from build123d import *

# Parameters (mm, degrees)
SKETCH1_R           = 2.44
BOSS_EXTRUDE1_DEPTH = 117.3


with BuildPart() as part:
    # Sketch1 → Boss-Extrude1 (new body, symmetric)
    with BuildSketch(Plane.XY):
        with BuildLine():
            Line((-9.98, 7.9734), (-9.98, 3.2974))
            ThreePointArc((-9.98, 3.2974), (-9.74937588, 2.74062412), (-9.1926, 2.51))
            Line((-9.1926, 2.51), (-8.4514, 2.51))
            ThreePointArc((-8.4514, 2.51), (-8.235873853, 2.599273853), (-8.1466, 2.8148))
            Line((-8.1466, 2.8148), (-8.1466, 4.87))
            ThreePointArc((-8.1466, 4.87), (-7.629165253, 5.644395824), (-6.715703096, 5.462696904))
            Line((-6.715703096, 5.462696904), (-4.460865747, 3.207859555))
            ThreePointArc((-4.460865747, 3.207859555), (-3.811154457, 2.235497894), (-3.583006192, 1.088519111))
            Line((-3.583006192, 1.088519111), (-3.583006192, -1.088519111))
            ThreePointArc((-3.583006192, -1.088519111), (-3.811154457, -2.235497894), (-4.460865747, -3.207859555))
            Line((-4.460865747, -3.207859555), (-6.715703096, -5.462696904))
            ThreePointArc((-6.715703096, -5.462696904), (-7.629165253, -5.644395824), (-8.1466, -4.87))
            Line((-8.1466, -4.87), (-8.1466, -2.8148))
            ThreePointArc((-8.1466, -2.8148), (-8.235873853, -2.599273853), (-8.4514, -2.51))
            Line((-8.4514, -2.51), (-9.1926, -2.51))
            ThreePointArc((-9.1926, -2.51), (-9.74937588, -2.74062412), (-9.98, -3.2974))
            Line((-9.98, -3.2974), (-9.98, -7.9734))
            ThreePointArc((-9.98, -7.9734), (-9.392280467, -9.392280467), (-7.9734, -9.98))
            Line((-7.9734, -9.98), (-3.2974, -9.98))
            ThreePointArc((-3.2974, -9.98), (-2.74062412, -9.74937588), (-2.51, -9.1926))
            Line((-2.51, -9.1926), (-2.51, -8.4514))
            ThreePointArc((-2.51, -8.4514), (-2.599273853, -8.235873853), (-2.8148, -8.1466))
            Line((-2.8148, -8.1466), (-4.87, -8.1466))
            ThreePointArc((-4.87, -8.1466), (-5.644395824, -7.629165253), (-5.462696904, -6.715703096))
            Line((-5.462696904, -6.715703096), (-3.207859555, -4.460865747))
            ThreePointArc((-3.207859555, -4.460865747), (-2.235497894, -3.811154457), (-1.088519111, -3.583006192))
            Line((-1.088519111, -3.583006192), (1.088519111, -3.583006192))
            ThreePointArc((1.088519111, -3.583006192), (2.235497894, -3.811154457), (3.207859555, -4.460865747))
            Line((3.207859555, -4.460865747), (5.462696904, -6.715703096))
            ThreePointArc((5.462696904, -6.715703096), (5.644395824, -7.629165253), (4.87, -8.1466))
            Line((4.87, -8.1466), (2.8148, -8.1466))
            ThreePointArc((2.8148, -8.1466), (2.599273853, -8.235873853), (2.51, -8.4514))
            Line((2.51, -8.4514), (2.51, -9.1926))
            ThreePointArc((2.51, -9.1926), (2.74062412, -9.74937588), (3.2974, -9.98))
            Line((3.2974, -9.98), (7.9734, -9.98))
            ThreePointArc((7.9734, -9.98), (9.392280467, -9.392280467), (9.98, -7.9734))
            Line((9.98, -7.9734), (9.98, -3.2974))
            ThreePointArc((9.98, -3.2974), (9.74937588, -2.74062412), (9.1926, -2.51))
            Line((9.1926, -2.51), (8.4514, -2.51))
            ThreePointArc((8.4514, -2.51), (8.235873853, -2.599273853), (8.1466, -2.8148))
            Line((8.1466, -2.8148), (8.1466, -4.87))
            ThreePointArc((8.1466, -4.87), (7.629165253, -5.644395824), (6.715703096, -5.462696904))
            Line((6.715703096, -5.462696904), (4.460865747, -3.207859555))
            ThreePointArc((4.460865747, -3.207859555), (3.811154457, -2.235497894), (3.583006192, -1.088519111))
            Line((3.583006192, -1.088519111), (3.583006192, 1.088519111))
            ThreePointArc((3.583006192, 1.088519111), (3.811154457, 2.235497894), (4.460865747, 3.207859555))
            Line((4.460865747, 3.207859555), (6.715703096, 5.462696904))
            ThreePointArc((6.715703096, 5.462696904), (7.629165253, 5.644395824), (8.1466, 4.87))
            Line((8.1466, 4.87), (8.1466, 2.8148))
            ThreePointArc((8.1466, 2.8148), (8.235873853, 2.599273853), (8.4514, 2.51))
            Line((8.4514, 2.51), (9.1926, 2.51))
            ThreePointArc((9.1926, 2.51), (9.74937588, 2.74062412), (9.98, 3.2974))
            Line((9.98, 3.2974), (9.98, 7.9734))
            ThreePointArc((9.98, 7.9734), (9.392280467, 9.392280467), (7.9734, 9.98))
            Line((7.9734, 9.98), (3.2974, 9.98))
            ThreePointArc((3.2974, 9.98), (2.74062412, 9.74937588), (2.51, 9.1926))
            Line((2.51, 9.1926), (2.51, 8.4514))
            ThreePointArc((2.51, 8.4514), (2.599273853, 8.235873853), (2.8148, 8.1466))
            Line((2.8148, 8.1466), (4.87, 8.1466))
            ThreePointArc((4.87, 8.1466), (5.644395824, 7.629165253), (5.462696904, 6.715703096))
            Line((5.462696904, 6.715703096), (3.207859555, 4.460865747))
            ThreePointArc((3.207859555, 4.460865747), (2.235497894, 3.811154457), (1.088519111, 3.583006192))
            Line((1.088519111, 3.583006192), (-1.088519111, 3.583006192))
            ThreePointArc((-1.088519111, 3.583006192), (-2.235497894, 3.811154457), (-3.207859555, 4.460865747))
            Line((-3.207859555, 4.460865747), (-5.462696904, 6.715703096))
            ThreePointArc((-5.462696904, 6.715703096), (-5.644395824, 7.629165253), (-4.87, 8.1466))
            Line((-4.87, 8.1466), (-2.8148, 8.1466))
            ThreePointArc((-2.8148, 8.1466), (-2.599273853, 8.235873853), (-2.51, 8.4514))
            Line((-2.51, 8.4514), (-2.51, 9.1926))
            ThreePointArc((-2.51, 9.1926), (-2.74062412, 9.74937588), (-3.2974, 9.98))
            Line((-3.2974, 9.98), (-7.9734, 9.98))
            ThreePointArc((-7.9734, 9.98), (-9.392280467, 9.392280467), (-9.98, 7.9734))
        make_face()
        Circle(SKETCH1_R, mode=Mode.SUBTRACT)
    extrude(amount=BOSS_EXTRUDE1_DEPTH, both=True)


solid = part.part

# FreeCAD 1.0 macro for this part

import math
import FreeCAD as App
import Part
import Sketcher

V = App.Vector
Q = App.Units.Quantity

doc = App.newDocument("Part")
body = doc.addObject("PartDesign::Body", "Body")

sketch1 = doc.addObject("Sketcher::SketchObject", "Sketch")
body.addObject(sketch1)
sketch1.AttachmentSupport = (doc.XY_Plane, [""])
sketch1.MapMode = "FlatFace"
sketch1.addGeometry(Part.LineSegment(V(-9.98, 7.9734, 0), V(-9.98, 3.2974, 0)), False)
sketch1.addGeometry(Part.ArcOfCircle(Part.Circle(V(-9.1926, 3.2974, 0), V(0, 0, 1), 0.7874), math.radians(180), math.radians(270)), False)
sketch1.addGeometry(Part.LineSegment(V(-9.1926, 2.51, 0), V(-8.4514, 2.51, 0)), False)
sketch1.addGeometry(Part.ArcOfCircle(Part.Circle(V(-8.4514, 2.8148, 0), V(0, 0, 1), 0.3048), math.radians(-90), math.radians(0)), False)
sketch1.addGeometry(Part.LineSegment(V(-8.1466, 2.8148, 0), V(-8.1466, 4.87, 0)), False)
sketch1.addGeometry(Part.ArcOfCircle(Part.Circle(V(-7.3084, 4.87, 0), V(0, 0, 1), 0.8382), math.radians(45), math.radians(180)), False)
sketch1.addGeometry(Part.LineSegment(V(-6.715703, 5.462697, 0), V(-4.460866, 3.20786, 0)), False)
sketch1.addGeometry(Part.ArcOfCircle(Part.Circle(V(-6.580206, 1.088519, 0), V(0, 0, 1), 2.9972), math.radians(0), math.radians(45)), False)
sketch1.addGeometry(Part.LineSegment(V(-3.583006, 1.088519, 0), V(-3.583006, -1.088519, 0)), False)
sketch1.addGeometry(Part.ArcOfCircle(Part.Circle(V(-6.580206, -1.088519, 0), V(0, 0, 1), 2.9972), math.radians(-45), math.radians(0)), False)
sketch1.addGeometry(Part.LineSegment(V(-4.460866, -3.20786, 0), V(-6.715703, -5.462697, 0)), False)
sketch1.addGeometry(Part.ArcOfCircle(Part.Circle(V(-7.3084, -4.87, 0), V(0, 0, 1), 0.8382), math.radians(180), math.radians(315)), False)
sketch1.addGeometry(Part.LineSegment(V(-8.1466, -4.87, 0), V(-8.1466, -2.8148, 0)), False)
sketch1.addGeometry(Part.ArcOfCircle(Part.Circle(V(-8.4514, -2.8148, 0), V(0, 0, 1), 0.3048), math.radians(0), math.radians(90)), False)
sketch1.addGeometry(Part.LineSegment(V(-8.4514, -2.51, 0), V(-9.1926, -2.51, 0)), False)
sketch1.addGeometry(Part.ArcOfCircle(Part.Circle(V(-9.1926, -3.2974, 0), V(0, 0, 1), 0.7874), math.radians(90), math.radians(180)), False)
sketch1.addGeometry(Part.LineSegment(V(-9.98, -3.2974, 0), V(-9.98, -7.9734, 0)), False)
sketch1.addGeometry(Part.ArcOfCircle(Part.Circle(V(-7.9734, -7.9734, 0), V(0, 0, 1), 2.0066), math.radians(180), math.radians(270)), False)
sketch1.addGeometry(Part.LineSegment(V(-7.9734, -9.98, 0), V(-3.2974, -9.98, 0)), False)
sketch1.addGeometry(Part.ArcOfCircle(Part.Circle(V(-3.2974, -9.1926, 0), V(0, 0, 1), 0.7874), math.radians(-90), math.radians(0)), False)
sketch1.addGeometry(Part.LineSegment(V(-2.51, -9.1926, 0), V(-2.51, -8.4514, 0)), False)
sketch1.addGeometry(Part.ArcOfCircle(Part.Circle(V(-2.8148, -8.4514, 0), V(0, 0, 1), 0.3048), math.radians(0), math.radians(90)), False)
sketch1.addGeometry(Part.LineSegment(V(-2.8148, -8.1466, 0), V(-4.87, -8.1466, 0)), False)
sketch1.addGeometry(Part.ArcOfCircle(Part.Circle(V(-4.87, -7.3084, 0), V(0, 0, 1), 0.8382), math.radians(135), math.radians(270)), False)
sketch1.addGeometry(Part.LineSegment(V(-5.462697, -6.715703, 0), V(-3.20786, -4.460866, 0)), False)
sketch1.addGeometry(Part.ArcOfCircle(Part.Circle(V(-1.088519, -6.580206, 0), V(0, 0, 1), 2.9972), math.radians(90), math.radians(135)), False)
sketch1.addGeometry(Part.LineSegment(V(-1.088519, -3.583006, 0), V(1.088519, -3.583006, 0)), False)
sketch1.addGeometry(Part.ArcOfCircle(Part.Circle(V(1.088519, -6.580206, 0), V(0, 0, 1), 2.9972), math.radians(45), math.radians(90)), False)
sketch1.addGeometry(Part.LineSegment(V(3.20786, -4.460866, 0), V(5.462697, -6.715703, 0)), False)
sketch1.addGeometry(Part.ArcOfCircle(Part.Circle(V(4.87, -7.3084, 0), V(0, 0, 1), 0.8382), math.radians(-90), math.radians(45)), False)
sketch1.addGeometry(Part.LineSegment(V(4.87, -8.1466, 0), V(2.8148, -8.1466, 0)), False)
sketch1.addGeometry(Part.ArcOfCircle(Part.Circle(V(2.8148, -8.4514, 0), V(0, 0, 1), 0.3048), math.radians(90), math.radians(180)), False)
sketch1.addGeometry(Part.LineSegment(V(2.51, -8.4514, 0), V(2.51, -9.1926, 0)), False)
sketch1.addGeometry(Part.ArcOfCircle(Part.Circle(V(3.2974, -9.1926, 0), V(0, 0, 1), 0.7874), math.radians(180), math.radians(270)), False)
sketch1.addGeometry(Part.LineSegment(V(3.2974, -9.98, 0), V(7.9734, -9.98, 0)), False)
sketch1.addGeometry(Part.ArcOfCircle(Part.Circle(V(7.9734, -7.9734, 0), V(0, 0, 1), 2.0066), math.radians(-90), math.radians(0)), False)
sketch1.addGeometry(Part.LineSegment(V(9.98, -7.9734, 0), V(9.98, -3.2974, 0)), False)
sketch1.addGeometry(Part.ArcOfCircle(Part.Circle(V(9.1926, -3.2974, 0), V(0, 0, 1), 0.7874), math.radians(0), math.radians(90)), False)
sketch1.addGeometry(Part.LineSegment(V(9.1926, -2.51, 0), V(8.4514, -2.51, 0)), False)
sketch1.addGeometry(Part.ArcOfCircle(Part.Circle(V(8.4514, -2.8148, 0), V(0, 0, 1), 0.3048), math.radians(90), math.radians(180)), False)
sketch1.addGeometry(Part.LineSegment(V(8.1466, -2.8148, 0), V(8.1466, -4.87, 0)), False)
sketch1.addGeometry(Part.ArcOfCircle(Part.Circle(V(7.3084, -4.87, 0), V(0, 0, 1), 0.8382), math.radians(-135), math.radians(0)), False)
sketch1.addGeometry(Part.LineSegment(V(6.715703, -5.462697, 0), V(4.460866, -3.20786, 0)), False)
sketch1.addGeometry(Part.ArcOfCircle(Part.Circle(V(6.580206, -1.088519, 0), V(0, 0, 1), 2.9972), math.radians(180), math.radians(225)), False)
sketch1.addGeometry(Part.LineSegment(V(3.583006, -1.088519, 0), V(3.583006, 1.088519, 0)), False)
sketch1.addGeometry(Part.ArcOfCircle(Part.Circle(V(6.580206, 1.088519, 0), V(0, 0, 1), 2.9972), math.radians(135), math.radians(180)), False)
sketch1.addGeometry(Part.LineSegment(V(4.460866, 3.20786, 0), V(6.715703, 5.462697, 0)), False)
sketch1.addGeometry(Part.ArcOfCircle(Part.Circle(V(7.3084, 4.87, 0), V(0, 0, 1), 0.8382), math.radians(0), math.radians(135)), False)
sketch1.addGeometry(Part.LineSegment(V(8.1466, 4.87, 0), V(8.1466, 2.8148, 0)), False)
sketch1.addGeometry(Part.ArcOfCircle(Part.Circle(V(8.4514, 2.8148, 0), V(0, 0, 1), 0.3048), math.radians(180), math.radians(270)), False)
sketch1.addGeometry(Part.LineSegment(V(8.4514, 2.51, 0), V(9.1926, 2.51, 0)), False)
sketch1.addGeometry(Part.ArcOfCircle(Part.Circle(V(9.1926, 3.2974, 0), V(0, 0, 1), 0.7874), math.radians(-90), math.radians(0)), False)
sketch1.addGeometry(Part.LineSegment(V(9.98, 3.2974, 0), V(9.98, 7.9734, 0)), False)
sketch1.addGeometry(Part.ArcOfCircle(Part.Circle(V(7.9734, 7.9734, 0), V(0, 0, 1), 2.0066), math.radians(0), math.radians(90)), False)
sketch1.addGeometry(Part.LineSegment(V(7.9734, 9.98, 0), V(3.2974, 9.98, 0)), False)
sketch1.addGeometry(Part.ArcOfCircle(Part.Circle(V(3.2974, 9.1926, 0), V(0, 0, 1), 0.7874), math.radians(90), math.radians(180)), False)
sketch1.addGeometry(Part.LineSegment(V(2.51, 9.1926, 0), V(2.51, 8.4514, 0)), False)
sketch1.addGeometry(Part.ArcOfCircle(Part.Circle(V(2.8148, 8.4514, 0), V(0, 0, 1), 0.3048), math.radians(180), math.radians(270)), False)
sketch1.addGeometry(Part.LineSegment(V(2.8148, 8.1466, 0), V(4.87, 8.1466, 0)), False)
sketch1.addGeometry(Part.ArcOfCircle(Part.Circle(V(4.87, 7.3084, 0), V(0, 0, 1), 0.8382), math.radians(-45), math.radians(90)), False)
sketch1.addGeometry(Part.LineSegment(V(5.462697, 6.715703, 0), V(3.20786, 4.460866, 0)), False)
sketch1.addGeometry(Part.ArcOfCircle(Part.Circle(V(1.088519, 6.580206, 0), V(0, 0, 1), 2.9972), math.radians(-90), math.radians(-45)), False)
sketch1.addGeometry(Part.LineSegment(V(1.088519, 3.583006, 0), V(-1.088519, 3.583006, 0)), False)
sketch1.addGeometry(Part.ArcOfCircle(Part.Circle(V(-1.088519, 6.580206, 0), V(0, 0, 1), 2.9972), math.radians(-135), math.radians(-90)), False)
sketch1.addGeometry(Part.LineSegment(V(-3.20786, 4.460866, 0), V(-5.462697, 6.715703, 0)), False)
sketch1.addGeometry(Part.ArcOfCircle(Part.Circle(V(-4.87, 7.3084, 0), V(0, 0, 1), 0.8382), math.radians(90), math.radians(225)), False)
sketch1.addGeometry(Part.LineSegment(V(-4.87, 8.1466, 0), V(-2.8148, 8.1466, 0)), False)
sketch1.addGeometry(Part.ArcOfCircle(Part.Circle(V(-2.8148, 8.4514, 0), V(0, 0, 1), 0.3048), math.radians(-90), math.radians(0)), False)
sketch1.addGeometry(Part.LineSegment(V(-2.51, 8.4514, 0), V(-2.51, 9.1926, 0)), False)
sketch1.addGeometry(Part.ArcOfCircle(Part.Circle(V(-3.2974, 9.1926, 0), V(0, 0, 1), 0.7874), math.radians(0), math.radians(90)), False)
sketch1.addGeometry(Part.LineSegment(V(-3.2974, 9.98, 0), V(-7.9734, 9.98, 0)), False)
sketch1.addGeometry(Part.ArcOfCircle(Part.Circle(V(-7.9734, 7.9734, 0), V(0, 0, 1), 2.0066), math.radians(90), math.radians(180)), False)
sketch1.addGeometry(Part.Circle(V(0, 0, 0), V(0, 0, 1), 2.44), False)
sketch1.addConstraint(Sketcher.Constraint("Tangent", 0, 2, 1, 1))
sketch1.addConstraint(Sketcher.Constraint("Tangent", 1, 2, 2, 1))
sketch1.addConstraint(Sketcher.Constraint("Tangent", 2, 2, 3, 1))
sketch1.addConstraint(Sketcher.Constraint("Tangent", 3, 2, 4, 1))
sketch1.addConstraint(Sketcher.Constraint("Tangent", 4, 2, 5, 2))
sketch1.addConstraint(Sketcher.Constraint("Tangent", 5, 1, 6, 1))
sketch1.addConstraint(Sketcher.Constraint("Tangent", 6, 2, 7, 2))
sketch1.addConstraint(Sketcher.Constraint("Tangent", 7, 1, 8, 1))
sketch1.addConstraint(Sketcher.Constraint("Tangent", 8, 2, 9, 2))
sketch1.addConstraint(Sketcher.Constraint("Tangent", 9, 1, 10, 1))
sketch1.addConstraint(Sketcher.Constraint("Tangent", 10, 2, 11, 2))
sketch1.addConstraint(Sketcher.Constraint("Tangent", 11, 1, 12, 1))
sketch1.addConstraint(Sketcher.Constraint("Tangent", 12, 2, 13, 1))
sketch1.addConstraint(Sketcher.Constraint("Tangent", 13, 2, 14, 1))
sketch1.addConstraint(Sketcher.Constraint("Tangent", 14, 2, 15, 1))
sketch1.addConstraint(Sketcher.Constraint("Tangent", 15, 2, 16, 1))
sketch1.addConstraint(Sketcher.Constraint("Tangent", 16, 2, 17, 1))
sketch1.addConstraint(Sketcher.Constraint("Tangent", 17, 2, 18, 1))
sketch1.addConstraint(Sketcher.Constraint("Tangent", 18, 2, 19, 1))
sketch1.addConstraint(Sketcher.Constraint("Tangent", 19, 2, 20, 1))
sketch1.addConstraint(Sketcher.Constraint("Tangent", 20, 2, 21, 1))
sketch1.addConstraint(Sketcher.Constraint("Tangent", 21, 2, 22, 1))
sketch1.addConstraint(Sketcher.Constraint("Tangent", 22, 2, 23, 2))
sketch1.addConstraint(Sketcher.Constraint("Tangent", 23, 1, 24, 1))
sketch1.addConstraint(Sketcher.Constraint("Tangent", 24, 2, 25, 2))
sketch1.addConstraint(Sketcher.Constraint("Tangent", 25, 1, 26, 1))
sketch1.addConstraint(Sketcher.Constraint("Tangent", 26, 2, 27, 2))
sketch1.addConstraint(Sketcher.Constraint("Tangent", 27, 1, 28, 1))
sketch1.addConstraint(Sketcher.Constraint("Tangent", 28, 2, 29, 2))
sketch1.addConstraint(Sketcher.Constraint("Tangent", 29, 1, 30, 1))
sketch1.addConstraint(Sketcher.Constraint("Tangent", 30, 2, 31, 1))
sketch1.addConstraint(Sketcher.Constraint("Tangent", 31, 2, 32, 1))
sketch1.addConstraint(Sketcher.Constraint("Tangent", 32, 2, 33, 1))
sketch1.addConstraint(Sketcher.Constraint("Tangent", 33, 2, 34, 1))
sketch1.addConstraint(Sketcher.Constraint("Tangent", 34, 2, 35, 1))
sketch1.addConstraint(Sketcher.Constraint("Tangent", 35, 2, 36, 1))
sketch1.addConstraint(Sketcher.Constraint("Tangent", 36, 2, 37, 1))
sketch1.addConstraint(Sketcher.Constraint("Tangent", 37, 2, 38, 1))
sketch1.addConstraint(Sketcher.Constraint("Tangent", 38, 2, 39, 1))
sketch1.addConstraint(Sketcher.Constraint("Tangent", 39, 2, 40, 1))
sketch1.addConstraint(Sketcher.Constraint("Tangent", 40, 2, 41, 2))
sketch1.addConstraint(Sketcher.Constraint("Tangent", 41, 1, 42, 1))
sketch1.addConstraint(Sketcher.Constraint("Tangent", 42, 2, 43, 2))
sketch1.addConstraint(Sketcher.Constraint("Tangent", 43, 1, 44, 1))
sketch1.addConstraint(Sketcher.Constraint("Tangent", 44, 2, 45, 2))
sketch1.addConstraint(Sketcher.Constraint("Tangent", 45, 1, 46, 1))
sketch1.addConstraint(Sketcher.Constraint("Tangent", 46, 2, 47, 2))
sketch1.addConstraint(Sketcher.Constraint("Tangent", 47, 1, 48, 1))
sketch1.addConstraint(Sketcher.Constraint("Tangent", 48, 2, 49, 1))
sketch1.addConstraint(Sketcher.Constraint("Tangent", 49, 2, 50, 1))
sketch1.addConstraint(Sketcher.Constraint("Tangent", 50, 2, 51, 1))
sketch1.addConstraint(Sketcher.Constraint("Tangent", 51, 2, 52, 1))
sketch1.addConstraint(Sketcher.Constraint("Tangent", 52, 2, 53, 1))
sketch1.addConstraint(Sketcher.Constraint("Tangent", 53, 2, 54, 1))
sketch1.addConstraint(Sketcher.Constraint("Tangent", 54, 2, 55, 1))
sketch1.addConstraint(Sketcher.Constraint("Tangent", 55, 2, 56, 1))
sketch1.addConstraint(Sketcher.Constraint("Tangent", 56, 2, 57, 1))
sketch1.addConstraint(Sketcher.Constraint("Tangent", 57, 2, 58, 1))
sketch1.addConstraint(Sketcher.Constraint("Tangent", 58, 2, 59, 2))
sketch1.addConstraint(Sketcher.Constraint("Tangent", 59, 1, 60, 1))
sketch1.addConstraint(Sketcher.Constraint("Tangent", 60, 2, 61, 2))
sketch1.addConstraint(Sketcher.Constraint("Tangent", 61, 1, 62, 1))
sketch1.addConstraint(Sketcher.Constraint("Tangent", 62, 2, 63, 2))
sketch1.addConstraint(Sketcher.Constraint("Tangent", 63, 1, 64, 1))
sketch1.addConstraint(Sketcher.Constraint("Tangent", 64, 2, 65, 2))
sketch1.addConstraint(Sketcher.Constraint("Tangent", 65, 1, 66, 1))
sketch1.addConstraint(Sketcher.Constraint("Tangent", 66, 2, 67, 1))
sketch1.addConstraint(Sketcher.Constraint("Tangent", 67, 2, 68, 1))
sketch1.addConstraint(Sketcher.Constraint("Tangent", 68, 2, 69, 1))
sketch1.addConstraint(Sketcher.Constraint("Tangent", 69, 2, 70, 1))
sketch1.addConstraint(Sketcher.Constraint("Tangent", 70, 2, 71, 1))
sketch1.addConstraint(Sketcher.Constraint("Tangent", 71, 2, 0, 1))
sketch1.addConstraint(Sketcher.Constraint("Vertical", 0))
sketch1.addConstraint(Sketcher.Constraint("Horizontal", 2))
sketch1.addConstraint(Sketcher.Constraint("Vertical", 4))
sketch1.addConstraint(Sketcher.Constraint("Vertical", 8))
sketch1.addConstraint(Sketcher.Constraint("Vertical", 12))
sketch1.addConstraint(Sketcher.Constraint("Horizontal", 14))
sketch1.addConstraint(Sketcher.Constraint("Vertical", 16))
sketch1.addConstraint(Sketcher.Constraint("Horizontal", 18))
sketch1.addConstraint(Sketcher.Constraint("Vertical", 20))
sketch1.addConstraint(Sketcher.Constraint("Horizontal", 22))
sketch1.addConstraint(Sketcher.Constraint("Horizontal", 26))
sketch1.addConstraint(Sketcher.Constraint("Horizontal", 30))
sketch1.addConstraint(Sketcher.Constraint("Vertical", 32))
sketch1.addConstraint(Sketcher.Constraint("Horizontal", 34))
sketch1.addConstraint(Sketcher.Constraint("Vertical", 36))
sketch1.addConstraint(Sketcher.Constraint("Horizontal", 38))
sketch1.addConstraint(Sketcher.Constraint("Vertical", 40))
sketch1.addConstraint(Sketcher.Constraint("Vertical", 44))
sketch1.addConstraint(Sketcher.Constraint("Vertical", 48))
sketch1.addConstraint(Sketcher.Constraint("Horizontal", 50))
sketch1.addConstraint(Sketcher.Constraint("Vertical", 52))
sketch1.addConstraint(Sketcher.Constraint("Horizontal", 54))
sketch1.addConstraint(Sketcher.Constraint("Vertical", 56))
sketch1.addConstraint(Sketcher.Constraint("Horizontal", 58))
sketch1.addConstraint(Sketcher.Constraint("Horizontal", 62))
sketch1.addConstraint(Sketcher.Constraint("Horizontal", 66))
sketch1.addConstraint(Sketcher.Constraint("Vertical", 68))
sketch1.addConstraint(Sketcher.Constraint("Horizontal", 70))
sketch1.addConstraint(Sketcher.Constraint("Coincident", 72, 3, -1, 1))
sketch1.addConstraint(Sketcher.Constraint("Equal", 7, 9))
sketch1.addConstraint(Sketcher.Constraint("Equal", 5, 11))
sketch1.addConstraint(Sketcher.Constraint("Equal", 3, 13))
sketch1.addConstraint(Sketcher.Constraint("Equal", 1, 15))
sketch1.addConstraint(Sketcher.Constraint("Equal", 15, 19))
sketch1.addConstraint(Sketcher.Constraint("Equal", 13, 21))
sketch1.addConstraint(Sketcher.Constraint("Equal", 11, 23))
sketch1.addConstraint(Sketcher.Constraint("Equal", 9, 25))
sketch1.addConstraint(Sketcher.Constraint("Equal", 25, 27))
sketch1.addConstraint(Sketcher.Constraint("Equal", 23, 29))
sketch1.addConstraint(Sketcher.Constraint("Equal", 21, 31))
sketch1.addConstraint(Sketcher.Constraint("Equal", 19, 33))
sketch1.addConstraint(Sketcher.Constraint("Equal", 17, 35))
sketch1.addConstraint(Sketcher.Constraint("Equal", 33, 37))
sketch1.addConstraint(Sketcher.Constraint("Equal", 31, 39))
sketch1.addConstraint(Sketcher.Constraint("Equal", 29, 41))
sketch1.addConstraint(Sketcher.Constraint("Equal", 27, 43))
sketch1.addConstraint(Sketcher.Constraint("Equal", 43, 45))
sketch1.addConstraint(Sketcher.Constraint("Equal", 41, 47))
sketch1.addConstraint(Sketcher.Constraint("Equal", 39, 49))
sketch1.addConstraint(Sketcher.Constraint("Equal", 37, 51))
sketch1.addConstraint(Sketcher.Constraint("Equal", 35, 53))
sketch1.addConstraint(Sketcher.Constraint("Equal", 51, 55))
sketch1.addConstraint(Sketcher.Constraint("Equal", 49, 57))
sketch1.addConstraint(Sketcher.Constraint("Equal", 47, 59))
sketch1.addConstraint(Sketcher.Constraint("Equal", 45, 61))
sketch1.addConstraint(Sketcher.Constraint("Equal", 61, 63))
sketch1.addConstraint(Sketcher.Constraint("Equal", 59, 65))
sketch1.addConstraint(Sketcher.Constraint("Equal", 57, 67))
sketch1.addConstraint(Sketcher.Constraint("Equal", 55, 69))
sketch1.addConstraint(Sketcher.Constraint("Equal", 53, 71))
sketch1.addConstraint(Sketcher.Constraint("Symmetric", 1, 3, 37, 3, -1, 1))
sketch1.addConstraint(Sketcher.Constraint("Symmetric", 5, 3, 41, 3, -1, 1))
sketch1.addConstraint(Sketcher.Constraint("Symmetric", 7, 3, 43, 3, -1, 1))
sketch1.addConstraint(Sketcher.Constraint("Symmetric", 11, 3, 47, 3, -1, 1))
sketch1.addConstraint(Sketcher.Constraint("Symmetric", 15, 3, 51, 3, -1, 1))
sketch1.addConstraint(Sketcher.Constraint("Symmetric", 19, 3, 55, 3, -1, 1))
sketch1.addConstraint(Sketcher.Constraint("Symmetric", 23, 3, 59, 3, -1, 1))
sketch1.addConstraint(Sketcher.Constraint("Symmetric", 25, 3, 61, 3, -1, 1))
sketch1.addConstraint(Sketcher.Constraint("Symmetric", 29, 3, 65, 3, -1, 1))
sketch1.addConstraint(Sketcher.Constraint("Symmetric", 33, 3, 69, 3, -1, 1))
sketch1.addConstraint(Sketcher.Constraint("Symmetric", 23, 3, 29, 3, -2))
sketch1.addConstraint(Sketcher.Constraint("Symmetric", 19, 3, 33, 3, -2))
sketch1.addConstraint(Sketcher.Constraint("Symmetric", 15, 3, 37, 3, -2))
sketch1.addConstraint(Sketcher.Constraint("Symmetric", 11, 3, 41, 3, -2))
sketch1.addConstraint(Sketcher.Constraint("Perpendicular", 6, 10))
sketch1.addConstraint(Sketcher.Constraint("Parallel", 10, 24))
sketch1.addConstraint(Sketcher.Constraint("Perpendicular", 24, 28))
sketch1.addConstraint(Sketcher.Constraint("Perpendicular", 42, 46))
sketch1.addConstraint(Sketcher.Constraint("Perpendicular", 60, 64))
sketch1.addConstraint(Sketcher.Constraint("Horizontal", 9, 3, 43, 3))
sketch1.addConstraint(Sketcher.Constraint("Equal", 70, 0))
sketch1.addConstraint(Sketcher.Constraint("Equal", 66, 4))
sketch1.addConstraint(Sketcher.Constraint("Equal", 62, 8))
sketch1.addConstraint(Sketcher.Constraint("Equal", 50, 20))
sketch1.addConstraint(Sketcher.Constraint("Equal", 10, 24))
sketch1.addConstraint(Sketcher.Constraint("Radius", 1, Q("0.031 in")))
sketch1.addConstraint(Sketcher.Constraint("Radius", 3, Q("0.012 in")))
sketch1.addConstraint(Sketcher.Constraint("Radius", 5, Q("0.033 in")))
sketch1.addConstraint(Sketcher.Constraint("Radius", 7, Q("0.118 in")))
sketch1.addConstraint(Sketcher.Constraint("Radius", 17, Q("0.079 in")))
sketch1.addConstraint(Sketcher.Constraint("Diameter", 72, 4.88))
sketch1.addConstraint(Sketcher.Constraint("DistanceX", 2, 1, 2, 2, 0.7412))
sketch1.addConstraint(Sketcher.Constraint("DistanceX", 18, 1, 18, 2, 4.676))
sketch1.addConstraint(Sketcher.Constraint("DistanceX", 22, 2, 22, 1, 2.0552))
sketch1.addConstraint(Sketcher.Constraint("DistanceX", 26, 1, 26, 2, 2.177038))
sketch1.addConstraint(Sketcher.Constraint("DistanceX", 1, 3, -1, 1, 9.1926))
pad1 = doc.addObject("PartDesign::Pad", "Pad")
body.addObject(pad1)
pad1.Profile = sketch1
pad1.Length = 234.6
pad1.Midplane = True

doc.recompute()
